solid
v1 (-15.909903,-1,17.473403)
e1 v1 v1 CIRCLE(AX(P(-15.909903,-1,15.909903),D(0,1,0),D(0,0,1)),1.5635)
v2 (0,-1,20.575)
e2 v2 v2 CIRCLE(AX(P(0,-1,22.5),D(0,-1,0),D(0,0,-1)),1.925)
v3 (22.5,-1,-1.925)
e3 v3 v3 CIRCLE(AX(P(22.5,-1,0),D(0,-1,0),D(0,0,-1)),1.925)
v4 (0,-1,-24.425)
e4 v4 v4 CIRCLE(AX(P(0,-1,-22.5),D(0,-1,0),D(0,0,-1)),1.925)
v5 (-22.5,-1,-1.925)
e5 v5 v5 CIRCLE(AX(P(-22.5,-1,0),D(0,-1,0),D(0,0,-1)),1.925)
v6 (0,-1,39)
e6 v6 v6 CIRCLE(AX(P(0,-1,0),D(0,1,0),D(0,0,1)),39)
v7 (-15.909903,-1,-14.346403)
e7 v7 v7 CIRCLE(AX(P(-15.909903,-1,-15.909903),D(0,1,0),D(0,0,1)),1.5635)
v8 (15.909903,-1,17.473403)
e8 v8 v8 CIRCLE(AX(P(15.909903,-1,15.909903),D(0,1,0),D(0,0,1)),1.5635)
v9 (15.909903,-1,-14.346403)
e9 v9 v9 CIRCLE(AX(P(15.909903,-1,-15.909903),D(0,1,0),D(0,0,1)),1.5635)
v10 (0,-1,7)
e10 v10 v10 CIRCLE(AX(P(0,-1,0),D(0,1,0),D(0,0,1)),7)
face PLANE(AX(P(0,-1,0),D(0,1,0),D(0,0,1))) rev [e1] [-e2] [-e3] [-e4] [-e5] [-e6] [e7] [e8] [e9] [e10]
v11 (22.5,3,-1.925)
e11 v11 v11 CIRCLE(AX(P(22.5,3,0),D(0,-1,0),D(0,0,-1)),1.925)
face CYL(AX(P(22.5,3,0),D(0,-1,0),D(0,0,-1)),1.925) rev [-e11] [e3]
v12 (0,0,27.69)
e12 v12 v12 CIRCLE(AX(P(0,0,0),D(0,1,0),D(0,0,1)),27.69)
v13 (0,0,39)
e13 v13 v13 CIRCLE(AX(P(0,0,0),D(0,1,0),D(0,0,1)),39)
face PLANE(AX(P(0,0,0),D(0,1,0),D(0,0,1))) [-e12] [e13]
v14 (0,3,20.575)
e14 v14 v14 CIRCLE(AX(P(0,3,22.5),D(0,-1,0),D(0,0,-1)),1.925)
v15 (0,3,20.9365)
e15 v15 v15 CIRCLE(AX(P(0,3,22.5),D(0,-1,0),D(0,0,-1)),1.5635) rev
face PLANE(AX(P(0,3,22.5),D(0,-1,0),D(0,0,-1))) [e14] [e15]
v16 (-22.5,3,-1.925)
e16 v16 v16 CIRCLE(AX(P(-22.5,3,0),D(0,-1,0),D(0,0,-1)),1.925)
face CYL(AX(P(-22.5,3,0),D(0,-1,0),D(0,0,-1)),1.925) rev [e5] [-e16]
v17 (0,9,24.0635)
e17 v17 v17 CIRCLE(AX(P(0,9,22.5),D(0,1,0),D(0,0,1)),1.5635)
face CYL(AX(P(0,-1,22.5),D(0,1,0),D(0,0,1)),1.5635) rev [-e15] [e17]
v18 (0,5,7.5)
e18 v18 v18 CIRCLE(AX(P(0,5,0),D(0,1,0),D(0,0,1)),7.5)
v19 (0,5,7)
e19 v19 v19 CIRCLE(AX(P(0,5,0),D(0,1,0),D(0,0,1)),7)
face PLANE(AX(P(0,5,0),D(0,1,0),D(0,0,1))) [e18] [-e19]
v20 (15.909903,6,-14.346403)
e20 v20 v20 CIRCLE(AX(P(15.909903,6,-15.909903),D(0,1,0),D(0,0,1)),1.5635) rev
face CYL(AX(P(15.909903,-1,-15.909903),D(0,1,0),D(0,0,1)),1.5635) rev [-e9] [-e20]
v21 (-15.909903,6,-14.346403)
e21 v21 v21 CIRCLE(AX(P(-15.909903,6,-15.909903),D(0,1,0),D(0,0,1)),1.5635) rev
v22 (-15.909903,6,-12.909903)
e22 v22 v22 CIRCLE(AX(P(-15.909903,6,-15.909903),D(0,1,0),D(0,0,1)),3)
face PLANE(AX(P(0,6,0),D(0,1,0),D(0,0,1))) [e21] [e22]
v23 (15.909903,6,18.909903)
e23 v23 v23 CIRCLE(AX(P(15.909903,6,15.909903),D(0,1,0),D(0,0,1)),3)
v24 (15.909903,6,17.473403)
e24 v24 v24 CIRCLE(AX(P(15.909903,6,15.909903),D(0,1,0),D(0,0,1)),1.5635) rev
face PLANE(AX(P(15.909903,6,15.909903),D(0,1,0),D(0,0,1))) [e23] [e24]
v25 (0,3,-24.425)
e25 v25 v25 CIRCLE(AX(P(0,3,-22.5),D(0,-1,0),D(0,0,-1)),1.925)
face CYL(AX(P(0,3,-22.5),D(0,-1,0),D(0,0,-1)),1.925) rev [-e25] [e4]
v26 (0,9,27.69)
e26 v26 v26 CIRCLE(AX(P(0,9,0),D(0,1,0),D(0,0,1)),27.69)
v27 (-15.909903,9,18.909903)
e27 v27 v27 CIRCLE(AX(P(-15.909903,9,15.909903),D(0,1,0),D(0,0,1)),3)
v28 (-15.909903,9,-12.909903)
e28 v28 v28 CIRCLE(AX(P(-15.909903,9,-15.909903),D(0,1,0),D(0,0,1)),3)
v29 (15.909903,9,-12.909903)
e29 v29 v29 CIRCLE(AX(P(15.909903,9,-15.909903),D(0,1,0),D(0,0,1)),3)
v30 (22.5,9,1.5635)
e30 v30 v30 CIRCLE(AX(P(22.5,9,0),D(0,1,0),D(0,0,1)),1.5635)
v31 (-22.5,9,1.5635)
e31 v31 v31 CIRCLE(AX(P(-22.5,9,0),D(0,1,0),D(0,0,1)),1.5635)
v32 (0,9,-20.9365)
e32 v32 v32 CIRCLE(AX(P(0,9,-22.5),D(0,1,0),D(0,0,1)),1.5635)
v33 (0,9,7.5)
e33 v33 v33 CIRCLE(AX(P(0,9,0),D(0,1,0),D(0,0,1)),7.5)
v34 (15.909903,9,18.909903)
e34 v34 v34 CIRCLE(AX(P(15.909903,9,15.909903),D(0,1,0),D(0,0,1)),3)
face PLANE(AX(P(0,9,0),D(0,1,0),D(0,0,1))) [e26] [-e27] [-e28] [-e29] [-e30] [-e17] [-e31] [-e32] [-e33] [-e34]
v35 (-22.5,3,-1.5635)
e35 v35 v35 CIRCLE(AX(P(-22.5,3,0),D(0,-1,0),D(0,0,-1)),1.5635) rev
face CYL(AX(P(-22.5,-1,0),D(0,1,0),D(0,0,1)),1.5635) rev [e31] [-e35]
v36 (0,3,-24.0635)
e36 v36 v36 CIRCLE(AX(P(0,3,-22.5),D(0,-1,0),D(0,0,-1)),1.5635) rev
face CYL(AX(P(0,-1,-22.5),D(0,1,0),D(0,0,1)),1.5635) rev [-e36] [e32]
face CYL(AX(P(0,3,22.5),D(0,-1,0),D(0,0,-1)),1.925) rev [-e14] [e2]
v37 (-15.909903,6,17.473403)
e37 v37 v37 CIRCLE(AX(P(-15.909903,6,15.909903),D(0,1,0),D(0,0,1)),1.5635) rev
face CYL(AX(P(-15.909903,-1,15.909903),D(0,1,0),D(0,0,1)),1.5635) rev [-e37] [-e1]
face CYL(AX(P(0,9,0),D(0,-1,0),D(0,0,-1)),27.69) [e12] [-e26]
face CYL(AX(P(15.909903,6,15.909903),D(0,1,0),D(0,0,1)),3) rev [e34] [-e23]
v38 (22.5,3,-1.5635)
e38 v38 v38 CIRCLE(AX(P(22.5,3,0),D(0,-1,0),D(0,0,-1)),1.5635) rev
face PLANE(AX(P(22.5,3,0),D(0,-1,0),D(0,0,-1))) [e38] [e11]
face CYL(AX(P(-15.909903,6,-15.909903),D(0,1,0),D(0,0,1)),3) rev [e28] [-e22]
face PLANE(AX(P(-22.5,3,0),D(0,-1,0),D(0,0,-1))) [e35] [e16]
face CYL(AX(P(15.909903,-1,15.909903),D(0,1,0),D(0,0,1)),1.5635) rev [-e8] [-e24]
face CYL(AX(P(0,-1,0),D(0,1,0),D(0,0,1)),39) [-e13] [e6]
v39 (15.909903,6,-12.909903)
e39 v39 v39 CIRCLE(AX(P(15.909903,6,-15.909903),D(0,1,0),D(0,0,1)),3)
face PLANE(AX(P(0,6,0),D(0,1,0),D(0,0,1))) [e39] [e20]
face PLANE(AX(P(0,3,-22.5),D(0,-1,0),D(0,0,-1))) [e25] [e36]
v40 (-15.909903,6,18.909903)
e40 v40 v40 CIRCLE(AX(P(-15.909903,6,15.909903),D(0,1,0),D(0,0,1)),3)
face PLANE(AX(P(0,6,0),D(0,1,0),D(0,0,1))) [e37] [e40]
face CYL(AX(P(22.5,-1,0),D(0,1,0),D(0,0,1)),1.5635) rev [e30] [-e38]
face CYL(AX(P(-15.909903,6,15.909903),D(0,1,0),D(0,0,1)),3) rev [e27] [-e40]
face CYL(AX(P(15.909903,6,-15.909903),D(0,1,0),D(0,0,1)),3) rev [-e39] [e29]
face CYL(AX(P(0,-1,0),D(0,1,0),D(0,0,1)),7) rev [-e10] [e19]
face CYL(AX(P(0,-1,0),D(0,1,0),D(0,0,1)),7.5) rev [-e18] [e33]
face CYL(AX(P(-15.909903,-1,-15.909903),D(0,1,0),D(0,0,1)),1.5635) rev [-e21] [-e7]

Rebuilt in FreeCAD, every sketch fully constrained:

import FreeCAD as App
import Part
import Sketcher

V = App.Vector
Q = App.Units.Quantity

doc = App.newDocument("Part")
body = doc.addObject("PartDesign::Body", "Body")

# Sketch on XZ plane
sketch1 = doc.addObject("Sketcher::SketchObject", "Sketch")
body.addObject(sketch1)
sketch1.AttachmentSupport = (doc.XZ_Plane, [""])
sketch1.MapMode = "FlatFace"
sketch1.addGeometry([
    Part.Circle(V(0, 0, 0), V(0, 0, 1), 39),  # 0
    Part.Circle(V(-15.909903, -15.909903, 0), V(0, 0, 1), 1.5635),  # 1
    Part.Circle(V(0, -22.5, 0), V(0, 0, 1), 1.5635),  # 2
    Part.Circle(V(-22.5, 0, 0), V(0, 0, 1), 1.5635),  # 3
    Part.Circle(V(-15.909903, 15.909903, 0), V(0, 0, 1), 1.5635),  # 4
    Part.Circle(V(15.909903, -15.909903, 0), V(0, 0, 1), 1.5635),  # 5
    Part.Circle(V(22.5, 0, 0), V(0, 0, 1), 1.5635),  # 6
    Part.Circle(V(0, 0, 0), V(0, 0, 1), 7.5),  # 7
    Part.Circle(V(0, 22.5, 0), V(0, 0, 1), 1.5635),  # 8
    Part.Circle(V(15.909903, 15.909903, 0), V(0, 0, 1), 1.5635),  # 9
], False)
sketch1.addConstraint([
    Sketcher.Constraint("Coincident", 0, 3, -1, 1),
    Sketcher.Constraint("Coincident", 7, 3, -1, 1),
    Sketcher.Constraint("Equal", 1, 2),
    Sketcher.Constraint("Equal", 2, 3),
    Sketcher.Constraint("Equal", 3, 4),
    Sketcher.Constraint("Equal", 4, 5),
    Sketcher.Constraint("Equal", 5, 6),
    Sketcher.Constraint("Equal", 6, 8),
    Sketcher.Constraint("Equal", 8, 9),
    Sketcher.Constraint("Symmetric", 4, 3, 5, 3, -1, 1),
    Sketcher.Constraint("Symmetric", 3, 3, 6, 3, -1, 1),
    Sketcher.Constraint("Symmetric", 2, 3, 8, 3, -1, 1),
    Sketcher.Constraint("Symmetric", 1, 3, 9, 3, -1, 1),
    Sketcher.Constraint("Symmetric", 1, 3, 5, 3, -2),
    Sketcher.Constraint("PointOnObject", 2, 3, -2),
    Sketcher.Constraint("PointOnObject", 3, 3, -1),
    Sketcher.Constraint("Diameter", 0, Q("78 mm")),
    Sketcher.Constraint("Diameter", 7, Q("15 mm")),
    Sketcher.Constraint("Diameter", 1, Q("3.127 mm")),
    Sketcher.Constraint("DistanceY", 2, 3, -1, 1, Q("22.5 mm")),
    Sketcher.Constraint("DistanceX", 3, 3, -1, 1, Q("22.5 mm")),
    Sketcher.Constraint("DistanceX", 1, 3, -1, 1, Q("15.909903 mm")),
    Sketcher.Constraint("DistanceY", 1, 3, -1, 1, Q("15.909903 mm")),
])
pad1 = doc.addObject("PartDesign::Pad", "Pad")
body.addObject(pad1)
pad1.Profile = sketch1
pad1.Length = 1

# Sketch on XZ plane
sketch2 = doc.addObject("Sketcher::SketchObject", "Sketch001")
body.addObject(sketch2)
sketch2.AttachmentSupport = (doc.XZ_Plane, [""])
sketch2.MapMode = "FlatFace"
sketch2.AttachmentOffset = App.Placement(V(0, 0, -9), App.Rotation())
sketch2.addGeometry([
    Part.Circle(V(0, 0, 0), V(0, 0, 1), 27.69),  # 0
    Part.Circle(V(-15.909903, -15.909903, 0), V(0, 0, 1), 1.5635),  # 1
    Part.Circle(V(0, -22.5, 0), V(0, 0, 1), 1.5635),  # 2
    Part.Circle(V(-22.5, 0, 0), V(0, 0, 1), 1.5635),  # 3
    Part.Circle(V(-15.909903, 15.909903, 0), V(0, 0, 1), 1.5635),  # 4
    Part.Circle(V(15.909903, -15.909903, 0), V(0, 0, 1), 1.5635),  # 5
    Part.Circle(V(22.5, 0, 0), V(0, 0, 1), 1.5635),  # 6
    Part.Circle(V(0, 0, 0), V(0, 0, 1), 7.5),  # 7
    Part.Circle(V(0, 22.5, 0), V(0, 0, 1), 1.5635),  # 8
    Part.Circle(V(15.909903, 15.909903, 0), V(0, 0, 1), 1.5635),  # 9
], False)
sketch2.addConstraint([
    Sketcher.Constraint("Coincident", 0, 3, -1, 1),
    Sketcher.Constraint("Coincident", 7, 3, -1, 1),
    Sketcher.Constraint("Equal", 1, 2),
    Sketcher.Constraint("Equal", 2, 3),
    Sketcher.Constraint("Equal", 3, 4),
    Sketcher.Constraint("Equal", 4, 5),
    Sketcher.Constraint("Equal", 5, 6),
    Sketcher.Constraint("Equal", 6, 8),
    Sketcher.Constraint("Equal", 8, 9),
    Sketcher.Constraint("Symmetric", 4, 3, 5, 3, -1, 1),
    Sketcher.Constraint("Symmetric", 3, 3, 6, 3, -1, 1),
    Sketcher.Constraint("Symmetric", 2, 3, 8, 3, -1, 1),
    Sketcher.Constraint("Symmetric", 1, 3, 9, 3, -1, 1),
    Sketcher.Constraint("Symmetric", 1, 3, 5, 3, -2),
    Sketcher.Constraint("PointOnObject", 2, 3, -2),
    Sketcher.Constraint("PointOnObject", 3, 3, -1),
    Sketcher.Constraint("Diameter", 7, Q("15 mm")),
    Sketcher.Constraint("Diameter", 0, Q("55.38 mm")),
    Sketcher.Constraint("Diameter", 1, Q("3.127 mm")),
    Sketcher.Constraint("DistanceY", 2, 3, -1, 1, Q("22.5 mm")),
    Sketcher.Constraint("DistanceX", 3, 3, -1, 1, Q("22.5 mm")),
    Sketcher.Constraint("DistanceX", 1, 3, -1, 1, Q("15.909903 mm")),
    Sketcher.Constraint("DistanceY", 1, 3, -1, 1, Q("15.909903 mm")),
])
pad2 = doc.addObject("PartDesign::Pad", "Pad001")
body.addObject(pad2)
pad2.Profile = sketch2
pad2.Length = 9

# Sketch on XZ plane
sketch3 = doc.addObject("Sketcher::SketchObject", "Sketch002")
body.addObject(sketch3)
sketch3.AttachmentSupport = (doc.XZ_Plane, [""])
sketch3.MapMode = "FlatFace"
sketch3.AttachmentOffset = App.Placement(V(0, 0, -9), App.Rotation())
sketch3.addGeometry([
    Part.Circle(V(-15.909903, -15.909903, 0), V(0, 0, 1), 3),  # 0
    Part.Circle(V(-15.909903, -15.909903, 0), V(0, 0, 1), 1.5635),  # 1
    Part.Circle(V(15.909903, -15.909903, 0), V(0, 0, 1), 3),  # 2
    Part.Circle(V(15.909903, -15.909903, 0), V(0, 0, 1), 1.5635),  # 3
    Part.Circle(V(-15.909903, 15.909903, 0), V(0, 0, 1), 3),  # 4
    Part.Circle(V(-15.909903, 15.909903, 0), V(0, 0, 1), 1.5635),  # 5
    Part.Circle(V(15.909903, 15.909903, 0), V(0, 0, 1), 3),  # 6
], False)
sketch3.addConstraint([
    Sketcher.Constraint("Coincident", 1, 3, 0, 3),
    Sketcher.Constraint("Coincident", 3, 3, 2, 3),
    Sketcher.Constraint("Coincident", 5, 3, 4, 3),
    Sketcher.Constraint("Equal", 0, 2),
    Sketcher.Constraint("Equal", 1, 3),
    Sketcher.Constraint("Equal", 2, 4),
    Sketcher.Constraint("Equal", 3, 5),
    Sketcher.Constraint("Equal", 4, 6),
    Sketcher.Constraint("Symmetric", 2, 3, 4, 3, -1, 1),
    Sketcher.Constraint("Symmetric", 0, 3, 6, 3, -1, 1),
    Sketcher.Constraint("Symmetric", 0, 3, 2, 3, -2),
    Sketcher.Constraint("Diameter", 0, Q("6 mm")),
    Sketcher.Constraint("Diameter", 1, Q("3.127 mm")),
    Sketcher.Constraint("DistanceX", 0, 3, -1, 1, Q("15.909903 mm")),
    Sketcher.Constraint("DistanceY", 0, 3, -1, 1, Q("15.909903 mm")),
])
pocket1 = doc.addObject("PartDesign::Pocket", "Pocket")
body.addObject(pocket1)
pocket1.Profile = sketch3
pocket1.Length = 3
pocket1.Reversed = True

# Sketch on XZ plane
sketch4 = doc.addObject("Sketcher::SketchObject", "Sketch003")
body.addObject(sketch4)
sketch4.AttachmentSupport = (doc.XZ_Plane, [""])
sketch4.MapMode = "FlatFace"
sketch4.addGeometry([
    Part.Circle(V(0, 0, 0), V(0, 0, 1), 7.5),
    Part.Circle(V(0, 0, 0), V(0, 0, 1), 7),
], False)
sketch4.addConstraint([
    Sketcher.Constraint("Coincident", 0, 3, -1, 1),
    Sketcher.Constraint("Coincident", 1, 3, -1, 1),
    Sketcher.Constraint("Diameter", 0, Q("15 mm")),
    Sketcher.Constraint("Diameter", 1, Q("14 mm")),
])
pad3 = doc.addObject("PartDesign::Pad", "Pad002")
body.addObject(pad3)
pad3.Profile = sketch4
pad3.Length = 1

# Sketch on XZ plane
sketch5 = doc.addObject("Sketcher::SketchObject", "Sketch004")
body.addObject(sketch5)
sketch5.AttachmentSupport = (doc.XZ_Plane, [""])
sketch5.MapMode = "FlatFace"
sketch5.AttachmentOffset = App.Placement(V(0, 0, -5), App.Rotation())
sketch5.addGeometry([
    Part.Circle(V(0, 0, 0), V(0, 0, 1), 7.5),
    Part.Circle(V(0, 0, 0), V(0, 0, 1), 7),
], False)
sketch5.addConstraint([
    Sketcher.Constraint("Coincident", 0, 3, -1, 1),
    Sketcher.Constraint("Coincident", 1, 3, -1, 1),
    Sketcher.Constraint("Diameter", 0, Q("15 mm")),
    Sketcher.Constraint("Diameter", 1, Q("14 mm")),
])
pad4 = doc.addObject("PartDesign::Pad", "Pad003")
body.addObject(pad4)
pad4.Profile = sketch5
pad4.Length = 5

# Sketch on XZ plane
sketch6 = doc.addObject("Sketcher::SketchObject", "Sketch005")
body.addObject(sketch6)
sketch6.AttachmentSupport = (doc.XZ_Plane, [""])
sketch6.MapMode = "FlatFace"
sketch6.AttachmentOffset = App.Placement(V(0, 0, 1), App.Rotation())
sketch6.addGeometry([
    Part.Circle(V(22.5, 0, 0), V(0, 0, 1), 1.925),
    Part.Circle(V(0, -22.5, 0), V(0, 0, 1), 1.925),
    Part.Circle(V(-22.5, 0, 0), V(0, 0, 1), 1.925),
    Part.Circle(V(0, 22.5, 0), V(0, 0, 1), 1.925),
], False)
sketch6.addConstraint([
    Sketcher.Constraint("Equal", 0, 1),
    Sketcher.Constraint("Equal", 1, 2),
    Sketcher.Constraint("Equal", 2, 3),
    Sketcher.Constraint("Symmetric", 0, 3, 2, 3, -1, 1),
    Sketcher.Constraint("Symmetric", 1, 3, 3, 3, -1, 1),
    Sketcher.Constraint("PointOnObject", 0, 3, -1),
    Sketcher.Constraint("PointOnObject", 1, 3, -2),
    Sketcher.Constraint("Diameter", 0, Q("3.85 mm")),
    Sketcher.Constraint("DistanceX", 2, 3, 0, 3, Q("45 mm")),
    Sketcher.Constraint("DistanceY", 1, 3, 3, 3, Q("45 mm")),
])
pocket2 = doc.addObject("PartDesign::Pocket", "Pocket001")
body.addObject(pocket2)
pocket2.Profile = sketch6
pocket2.Length = 4

doc.recompute()
